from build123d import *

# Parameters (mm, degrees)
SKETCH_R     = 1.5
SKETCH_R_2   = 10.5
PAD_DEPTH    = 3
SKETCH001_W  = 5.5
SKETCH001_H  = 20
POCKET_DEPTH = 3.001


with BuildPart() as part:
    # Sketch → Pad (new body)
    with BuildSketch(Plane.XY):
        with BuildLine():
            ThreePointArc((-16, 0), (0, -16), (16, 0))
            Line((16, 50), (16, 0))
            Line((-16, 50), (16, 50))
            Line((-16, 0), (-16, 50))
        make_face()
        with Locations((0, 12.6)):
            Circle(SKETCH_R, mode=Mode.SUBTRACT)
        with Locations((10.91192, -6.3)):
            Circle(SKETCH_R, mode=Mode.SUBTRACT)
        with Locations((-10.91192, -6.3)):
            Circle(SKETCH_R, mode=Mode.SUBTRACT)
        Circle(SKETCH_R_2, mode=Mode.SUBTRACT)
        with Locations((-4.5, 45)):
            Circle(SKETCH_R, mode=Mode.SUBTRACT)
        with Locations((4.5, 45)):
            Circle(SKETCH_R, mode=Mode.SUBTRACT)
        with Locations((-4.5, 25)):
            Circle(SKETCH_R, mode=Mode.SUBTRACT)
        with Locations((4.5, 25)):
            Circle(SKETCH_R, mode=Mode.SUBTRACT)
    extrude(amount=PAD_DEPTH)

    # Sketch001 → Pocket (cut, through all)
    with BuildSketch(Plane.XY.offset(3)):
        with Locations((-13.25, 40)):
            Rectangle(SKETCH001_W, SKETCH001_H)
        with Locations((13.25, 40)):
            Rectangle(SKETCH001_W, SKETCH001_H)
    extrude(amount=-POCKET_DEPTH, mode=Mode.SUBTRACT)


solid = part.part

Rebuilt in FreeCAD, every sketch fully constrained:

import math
import FreeCAD as App
import Part
import Sketcher
from FreeCAD import Vector
Q = App.Units.Quantity


def add_polygon(sketch, points):
    """Adds a closed chain of lines whose ends are joined by coincident constraints."""
    first, n = sketch.GeometryCount, len(points)
    for a, b in zip(points, points[1:] + points[:1]):
        sketch.addGeometry(Part.LineSegment(App.Vector(*a, 0), App.Vector(*b, 0)), False)
    for i in range(n):
        sketch.addConstraint(Sketcher.Constraint("Coincident", first + i, 2, first + (i + 1) % n, 1))

doc = App.newDocument("Part")
body = doc.addObject("PartDesign::Body", "Body")

# Sketch on XY plane
sketch1 = body.newObject("Sketcher::SketchObject", "Sketch")
sketch1.AttachmentSupport = (doc.getObject("XY_Plane"), [""])
sketch1.MapMode = "FlatFace"
sketch1.addGeometry([
    Part.ArcOfCircle(Part.Circle(Vector(0, 0, 0), Vector(0, 0, 1), 16), math.radians(180), math.radians(360)),  # 0
    Part.LineSegment(Vector(16, 0, 0), Vector(16, 50, 0)),  # 1
    Part.LineSegment(Vector(16, 50, 0), Vector(-16, 50, 0)),  # 2
    Part.LineSegment(Vector(-16, 50, 0), Vector(-16, 0, 0)),  # 3
    Part.Circle(Vector(-10.9, -6.3, 0), Vector(0, 0, 1), 1.5),  # 4
    Part.Circle(Vector(0, 0, 0), Vector(0, 0, 1), 10.5),  # 5
    Part.Circle(Vector(0, 12.6, 0), Vector(0, 0, 1), 1.5),  # 6
    Part.Circle(Vector(10.9, -6.3, 0), Vector(0, 0, 1), 1.5),  # 7
    Part.Circle(Vector(-4.5, 25, 0), Vector(0, 0, 1), 1.5),  # 8
    Part.Circle(Vector(-4.5, 45, 0), Vector(0, 0, 1), 1.5),  # 9
    Part.Circle(Vector(4.5, 25, 0), Vector(0, 0, 1), 1.5),  # 10
    Part.Circle(Vector(4.5, 45, 0), Vector(0, 0, 1), 1.5),  # 11
], False)
sketch1.addConstraint([
    Sketcher.Constraint("Tangent", 0, 2, 1, 1),
    Sketcher.Constraint("Coincident", 1, 2, 2, 1),
    Sketcher.Constraint("Coincident", 2, 2, 3, 1),
    Sketcher.Constraint("Tangent", 3, 2, 0, 1),
    Sketcher.Constraint("Vertical", 1),
    Sketcher.Constraint("Horizontal", 2),
    Sketcher.Constraint("Vertical", 3),
    Sketcher.Constraint("Coincident", 0, 3, -1, 1),
    Sketcher.Constraint("Coincident", 5, 3, -1, 1),
    Sketcher.Constraint("Equal", 4, 6),
    Sketcher.Constraint("Equal", 6, 7),
    Sketcher.Constraint("Equal", 7, 8),
    Sketcher.Constraint("Equal", 8, 9),
    Sketcher.Constraint("Equal", 9, 10),
    Sketcher.Constraint("Equal", 10, 11),
    Sketcher.Constraint("Symmetric", 4, 3, 7, 3, -2),
    Sketcher.Constraint("Symmetric", 8, 3, 10, 3, -2),
    Sketcher.Constraint("Symmetric", 9, 3, 11, 3, -2),
    Sketcher.Constraint("PointOnObject", 6, 3, -2),
    Sketcher.Constraint("Vertical", 8, 3, 9, 3),
    Sketcher.Constraint("Diameter", 4, Q("3 mm")),
    Sketcher.Constraint("Diameter", 5, Q("21 mm")),
    Sketcher.Constraint("Radius", 0, Q("16 mm")),
    Sketcher.Constraint("DistanceY", 1, 1, 1, 2, Q("50 mm")),
    Sketcher.Constraint("DistanceY", -1, 1, 8, 3, Q("25 mm")),
    Sketcher.Constraint("DistanceY", -1, 1, 9, 3, Q("45 mm")),
    Sketcher.Constraint("DistanceX", 8, 3, 10, 3, Q("9 mm")),
    Sketcher.Constraint("DistanceY", 4, 3, -1, 1, Q("6.3 mm")),
    Sketcher.Constraint("DistanceY", -1, 1, 6, 3, Q("12.6 mm")),
    Sketcher.Constraint("DistanceX", 4, 3, -1, 1, Q("10.91192 mm")),
])
pad1 = body.newObject("PartDesign::Pad", "Pad")
pad1.Profile = sketch1
pad1.Length = 3

# Sketch on XY plane
sketch2 = body.newObject("Sketcher::SketchObject", "Sketch001")
sketch2.AttachmentSupport = (doc.getObject("XY_Plane"), [""])
sketch2.MapMode = "FlatFace"
sketch2.AttachmentOffset = App.Placement(Vector(0, 0, 3), App.Rotation())
add_polygon(sketch2, [(-16, 50), (-16, 30), (-10, 30), (-10, 50)])  # lines 0-3
add_polygon(sketch2, [(10, 50), (10, 30), (16, 30), (16, 50)])  # lines 4-7
sketch2.addConstraint([
    Sketcher.Constraint("Vertical", 0),
    Sketcher.Constraint("Horizontal", 1),
    Sketcher.Constraint("Vertical", 2),
    Sketcher.Constraint("Horizontal", 3),
    Sketcher.Constraint("Vertical", 4),
    Sketcher.Constraint("Horizontal", 5),
    Sketcher.Constraint("Vertical", 6),
    Sketcher.Constraint("Horizontal", 7),
    Sketcher.Constraint("Symmetric", 1, 2, 4, 2, -2),
    Sketcher.Constraint("Symmetric", 3, 2, 6, 2, -2),
    Sketcher.Constraint("DistanceY", 0, 2, 0, 1, Q("20 mm")),
    Sketcher.Constraint("DistanceX", 1, 1, 1, 2, Q("5.5 mm")),
    Sketcher.Constraint("DistanceX", 0, 2, -1, 1, Q("16 mm")),
    Sketcher.Constraint("DistanceY", -1, 1, 0, 2, Q("30 mm")),
])
pocket1 = body.newObject("PartDesign::Pocket", "Pocket")
pocket1.Profile = sketch2
pocket1.Type = "ThroughAll"

doc.recompute()
